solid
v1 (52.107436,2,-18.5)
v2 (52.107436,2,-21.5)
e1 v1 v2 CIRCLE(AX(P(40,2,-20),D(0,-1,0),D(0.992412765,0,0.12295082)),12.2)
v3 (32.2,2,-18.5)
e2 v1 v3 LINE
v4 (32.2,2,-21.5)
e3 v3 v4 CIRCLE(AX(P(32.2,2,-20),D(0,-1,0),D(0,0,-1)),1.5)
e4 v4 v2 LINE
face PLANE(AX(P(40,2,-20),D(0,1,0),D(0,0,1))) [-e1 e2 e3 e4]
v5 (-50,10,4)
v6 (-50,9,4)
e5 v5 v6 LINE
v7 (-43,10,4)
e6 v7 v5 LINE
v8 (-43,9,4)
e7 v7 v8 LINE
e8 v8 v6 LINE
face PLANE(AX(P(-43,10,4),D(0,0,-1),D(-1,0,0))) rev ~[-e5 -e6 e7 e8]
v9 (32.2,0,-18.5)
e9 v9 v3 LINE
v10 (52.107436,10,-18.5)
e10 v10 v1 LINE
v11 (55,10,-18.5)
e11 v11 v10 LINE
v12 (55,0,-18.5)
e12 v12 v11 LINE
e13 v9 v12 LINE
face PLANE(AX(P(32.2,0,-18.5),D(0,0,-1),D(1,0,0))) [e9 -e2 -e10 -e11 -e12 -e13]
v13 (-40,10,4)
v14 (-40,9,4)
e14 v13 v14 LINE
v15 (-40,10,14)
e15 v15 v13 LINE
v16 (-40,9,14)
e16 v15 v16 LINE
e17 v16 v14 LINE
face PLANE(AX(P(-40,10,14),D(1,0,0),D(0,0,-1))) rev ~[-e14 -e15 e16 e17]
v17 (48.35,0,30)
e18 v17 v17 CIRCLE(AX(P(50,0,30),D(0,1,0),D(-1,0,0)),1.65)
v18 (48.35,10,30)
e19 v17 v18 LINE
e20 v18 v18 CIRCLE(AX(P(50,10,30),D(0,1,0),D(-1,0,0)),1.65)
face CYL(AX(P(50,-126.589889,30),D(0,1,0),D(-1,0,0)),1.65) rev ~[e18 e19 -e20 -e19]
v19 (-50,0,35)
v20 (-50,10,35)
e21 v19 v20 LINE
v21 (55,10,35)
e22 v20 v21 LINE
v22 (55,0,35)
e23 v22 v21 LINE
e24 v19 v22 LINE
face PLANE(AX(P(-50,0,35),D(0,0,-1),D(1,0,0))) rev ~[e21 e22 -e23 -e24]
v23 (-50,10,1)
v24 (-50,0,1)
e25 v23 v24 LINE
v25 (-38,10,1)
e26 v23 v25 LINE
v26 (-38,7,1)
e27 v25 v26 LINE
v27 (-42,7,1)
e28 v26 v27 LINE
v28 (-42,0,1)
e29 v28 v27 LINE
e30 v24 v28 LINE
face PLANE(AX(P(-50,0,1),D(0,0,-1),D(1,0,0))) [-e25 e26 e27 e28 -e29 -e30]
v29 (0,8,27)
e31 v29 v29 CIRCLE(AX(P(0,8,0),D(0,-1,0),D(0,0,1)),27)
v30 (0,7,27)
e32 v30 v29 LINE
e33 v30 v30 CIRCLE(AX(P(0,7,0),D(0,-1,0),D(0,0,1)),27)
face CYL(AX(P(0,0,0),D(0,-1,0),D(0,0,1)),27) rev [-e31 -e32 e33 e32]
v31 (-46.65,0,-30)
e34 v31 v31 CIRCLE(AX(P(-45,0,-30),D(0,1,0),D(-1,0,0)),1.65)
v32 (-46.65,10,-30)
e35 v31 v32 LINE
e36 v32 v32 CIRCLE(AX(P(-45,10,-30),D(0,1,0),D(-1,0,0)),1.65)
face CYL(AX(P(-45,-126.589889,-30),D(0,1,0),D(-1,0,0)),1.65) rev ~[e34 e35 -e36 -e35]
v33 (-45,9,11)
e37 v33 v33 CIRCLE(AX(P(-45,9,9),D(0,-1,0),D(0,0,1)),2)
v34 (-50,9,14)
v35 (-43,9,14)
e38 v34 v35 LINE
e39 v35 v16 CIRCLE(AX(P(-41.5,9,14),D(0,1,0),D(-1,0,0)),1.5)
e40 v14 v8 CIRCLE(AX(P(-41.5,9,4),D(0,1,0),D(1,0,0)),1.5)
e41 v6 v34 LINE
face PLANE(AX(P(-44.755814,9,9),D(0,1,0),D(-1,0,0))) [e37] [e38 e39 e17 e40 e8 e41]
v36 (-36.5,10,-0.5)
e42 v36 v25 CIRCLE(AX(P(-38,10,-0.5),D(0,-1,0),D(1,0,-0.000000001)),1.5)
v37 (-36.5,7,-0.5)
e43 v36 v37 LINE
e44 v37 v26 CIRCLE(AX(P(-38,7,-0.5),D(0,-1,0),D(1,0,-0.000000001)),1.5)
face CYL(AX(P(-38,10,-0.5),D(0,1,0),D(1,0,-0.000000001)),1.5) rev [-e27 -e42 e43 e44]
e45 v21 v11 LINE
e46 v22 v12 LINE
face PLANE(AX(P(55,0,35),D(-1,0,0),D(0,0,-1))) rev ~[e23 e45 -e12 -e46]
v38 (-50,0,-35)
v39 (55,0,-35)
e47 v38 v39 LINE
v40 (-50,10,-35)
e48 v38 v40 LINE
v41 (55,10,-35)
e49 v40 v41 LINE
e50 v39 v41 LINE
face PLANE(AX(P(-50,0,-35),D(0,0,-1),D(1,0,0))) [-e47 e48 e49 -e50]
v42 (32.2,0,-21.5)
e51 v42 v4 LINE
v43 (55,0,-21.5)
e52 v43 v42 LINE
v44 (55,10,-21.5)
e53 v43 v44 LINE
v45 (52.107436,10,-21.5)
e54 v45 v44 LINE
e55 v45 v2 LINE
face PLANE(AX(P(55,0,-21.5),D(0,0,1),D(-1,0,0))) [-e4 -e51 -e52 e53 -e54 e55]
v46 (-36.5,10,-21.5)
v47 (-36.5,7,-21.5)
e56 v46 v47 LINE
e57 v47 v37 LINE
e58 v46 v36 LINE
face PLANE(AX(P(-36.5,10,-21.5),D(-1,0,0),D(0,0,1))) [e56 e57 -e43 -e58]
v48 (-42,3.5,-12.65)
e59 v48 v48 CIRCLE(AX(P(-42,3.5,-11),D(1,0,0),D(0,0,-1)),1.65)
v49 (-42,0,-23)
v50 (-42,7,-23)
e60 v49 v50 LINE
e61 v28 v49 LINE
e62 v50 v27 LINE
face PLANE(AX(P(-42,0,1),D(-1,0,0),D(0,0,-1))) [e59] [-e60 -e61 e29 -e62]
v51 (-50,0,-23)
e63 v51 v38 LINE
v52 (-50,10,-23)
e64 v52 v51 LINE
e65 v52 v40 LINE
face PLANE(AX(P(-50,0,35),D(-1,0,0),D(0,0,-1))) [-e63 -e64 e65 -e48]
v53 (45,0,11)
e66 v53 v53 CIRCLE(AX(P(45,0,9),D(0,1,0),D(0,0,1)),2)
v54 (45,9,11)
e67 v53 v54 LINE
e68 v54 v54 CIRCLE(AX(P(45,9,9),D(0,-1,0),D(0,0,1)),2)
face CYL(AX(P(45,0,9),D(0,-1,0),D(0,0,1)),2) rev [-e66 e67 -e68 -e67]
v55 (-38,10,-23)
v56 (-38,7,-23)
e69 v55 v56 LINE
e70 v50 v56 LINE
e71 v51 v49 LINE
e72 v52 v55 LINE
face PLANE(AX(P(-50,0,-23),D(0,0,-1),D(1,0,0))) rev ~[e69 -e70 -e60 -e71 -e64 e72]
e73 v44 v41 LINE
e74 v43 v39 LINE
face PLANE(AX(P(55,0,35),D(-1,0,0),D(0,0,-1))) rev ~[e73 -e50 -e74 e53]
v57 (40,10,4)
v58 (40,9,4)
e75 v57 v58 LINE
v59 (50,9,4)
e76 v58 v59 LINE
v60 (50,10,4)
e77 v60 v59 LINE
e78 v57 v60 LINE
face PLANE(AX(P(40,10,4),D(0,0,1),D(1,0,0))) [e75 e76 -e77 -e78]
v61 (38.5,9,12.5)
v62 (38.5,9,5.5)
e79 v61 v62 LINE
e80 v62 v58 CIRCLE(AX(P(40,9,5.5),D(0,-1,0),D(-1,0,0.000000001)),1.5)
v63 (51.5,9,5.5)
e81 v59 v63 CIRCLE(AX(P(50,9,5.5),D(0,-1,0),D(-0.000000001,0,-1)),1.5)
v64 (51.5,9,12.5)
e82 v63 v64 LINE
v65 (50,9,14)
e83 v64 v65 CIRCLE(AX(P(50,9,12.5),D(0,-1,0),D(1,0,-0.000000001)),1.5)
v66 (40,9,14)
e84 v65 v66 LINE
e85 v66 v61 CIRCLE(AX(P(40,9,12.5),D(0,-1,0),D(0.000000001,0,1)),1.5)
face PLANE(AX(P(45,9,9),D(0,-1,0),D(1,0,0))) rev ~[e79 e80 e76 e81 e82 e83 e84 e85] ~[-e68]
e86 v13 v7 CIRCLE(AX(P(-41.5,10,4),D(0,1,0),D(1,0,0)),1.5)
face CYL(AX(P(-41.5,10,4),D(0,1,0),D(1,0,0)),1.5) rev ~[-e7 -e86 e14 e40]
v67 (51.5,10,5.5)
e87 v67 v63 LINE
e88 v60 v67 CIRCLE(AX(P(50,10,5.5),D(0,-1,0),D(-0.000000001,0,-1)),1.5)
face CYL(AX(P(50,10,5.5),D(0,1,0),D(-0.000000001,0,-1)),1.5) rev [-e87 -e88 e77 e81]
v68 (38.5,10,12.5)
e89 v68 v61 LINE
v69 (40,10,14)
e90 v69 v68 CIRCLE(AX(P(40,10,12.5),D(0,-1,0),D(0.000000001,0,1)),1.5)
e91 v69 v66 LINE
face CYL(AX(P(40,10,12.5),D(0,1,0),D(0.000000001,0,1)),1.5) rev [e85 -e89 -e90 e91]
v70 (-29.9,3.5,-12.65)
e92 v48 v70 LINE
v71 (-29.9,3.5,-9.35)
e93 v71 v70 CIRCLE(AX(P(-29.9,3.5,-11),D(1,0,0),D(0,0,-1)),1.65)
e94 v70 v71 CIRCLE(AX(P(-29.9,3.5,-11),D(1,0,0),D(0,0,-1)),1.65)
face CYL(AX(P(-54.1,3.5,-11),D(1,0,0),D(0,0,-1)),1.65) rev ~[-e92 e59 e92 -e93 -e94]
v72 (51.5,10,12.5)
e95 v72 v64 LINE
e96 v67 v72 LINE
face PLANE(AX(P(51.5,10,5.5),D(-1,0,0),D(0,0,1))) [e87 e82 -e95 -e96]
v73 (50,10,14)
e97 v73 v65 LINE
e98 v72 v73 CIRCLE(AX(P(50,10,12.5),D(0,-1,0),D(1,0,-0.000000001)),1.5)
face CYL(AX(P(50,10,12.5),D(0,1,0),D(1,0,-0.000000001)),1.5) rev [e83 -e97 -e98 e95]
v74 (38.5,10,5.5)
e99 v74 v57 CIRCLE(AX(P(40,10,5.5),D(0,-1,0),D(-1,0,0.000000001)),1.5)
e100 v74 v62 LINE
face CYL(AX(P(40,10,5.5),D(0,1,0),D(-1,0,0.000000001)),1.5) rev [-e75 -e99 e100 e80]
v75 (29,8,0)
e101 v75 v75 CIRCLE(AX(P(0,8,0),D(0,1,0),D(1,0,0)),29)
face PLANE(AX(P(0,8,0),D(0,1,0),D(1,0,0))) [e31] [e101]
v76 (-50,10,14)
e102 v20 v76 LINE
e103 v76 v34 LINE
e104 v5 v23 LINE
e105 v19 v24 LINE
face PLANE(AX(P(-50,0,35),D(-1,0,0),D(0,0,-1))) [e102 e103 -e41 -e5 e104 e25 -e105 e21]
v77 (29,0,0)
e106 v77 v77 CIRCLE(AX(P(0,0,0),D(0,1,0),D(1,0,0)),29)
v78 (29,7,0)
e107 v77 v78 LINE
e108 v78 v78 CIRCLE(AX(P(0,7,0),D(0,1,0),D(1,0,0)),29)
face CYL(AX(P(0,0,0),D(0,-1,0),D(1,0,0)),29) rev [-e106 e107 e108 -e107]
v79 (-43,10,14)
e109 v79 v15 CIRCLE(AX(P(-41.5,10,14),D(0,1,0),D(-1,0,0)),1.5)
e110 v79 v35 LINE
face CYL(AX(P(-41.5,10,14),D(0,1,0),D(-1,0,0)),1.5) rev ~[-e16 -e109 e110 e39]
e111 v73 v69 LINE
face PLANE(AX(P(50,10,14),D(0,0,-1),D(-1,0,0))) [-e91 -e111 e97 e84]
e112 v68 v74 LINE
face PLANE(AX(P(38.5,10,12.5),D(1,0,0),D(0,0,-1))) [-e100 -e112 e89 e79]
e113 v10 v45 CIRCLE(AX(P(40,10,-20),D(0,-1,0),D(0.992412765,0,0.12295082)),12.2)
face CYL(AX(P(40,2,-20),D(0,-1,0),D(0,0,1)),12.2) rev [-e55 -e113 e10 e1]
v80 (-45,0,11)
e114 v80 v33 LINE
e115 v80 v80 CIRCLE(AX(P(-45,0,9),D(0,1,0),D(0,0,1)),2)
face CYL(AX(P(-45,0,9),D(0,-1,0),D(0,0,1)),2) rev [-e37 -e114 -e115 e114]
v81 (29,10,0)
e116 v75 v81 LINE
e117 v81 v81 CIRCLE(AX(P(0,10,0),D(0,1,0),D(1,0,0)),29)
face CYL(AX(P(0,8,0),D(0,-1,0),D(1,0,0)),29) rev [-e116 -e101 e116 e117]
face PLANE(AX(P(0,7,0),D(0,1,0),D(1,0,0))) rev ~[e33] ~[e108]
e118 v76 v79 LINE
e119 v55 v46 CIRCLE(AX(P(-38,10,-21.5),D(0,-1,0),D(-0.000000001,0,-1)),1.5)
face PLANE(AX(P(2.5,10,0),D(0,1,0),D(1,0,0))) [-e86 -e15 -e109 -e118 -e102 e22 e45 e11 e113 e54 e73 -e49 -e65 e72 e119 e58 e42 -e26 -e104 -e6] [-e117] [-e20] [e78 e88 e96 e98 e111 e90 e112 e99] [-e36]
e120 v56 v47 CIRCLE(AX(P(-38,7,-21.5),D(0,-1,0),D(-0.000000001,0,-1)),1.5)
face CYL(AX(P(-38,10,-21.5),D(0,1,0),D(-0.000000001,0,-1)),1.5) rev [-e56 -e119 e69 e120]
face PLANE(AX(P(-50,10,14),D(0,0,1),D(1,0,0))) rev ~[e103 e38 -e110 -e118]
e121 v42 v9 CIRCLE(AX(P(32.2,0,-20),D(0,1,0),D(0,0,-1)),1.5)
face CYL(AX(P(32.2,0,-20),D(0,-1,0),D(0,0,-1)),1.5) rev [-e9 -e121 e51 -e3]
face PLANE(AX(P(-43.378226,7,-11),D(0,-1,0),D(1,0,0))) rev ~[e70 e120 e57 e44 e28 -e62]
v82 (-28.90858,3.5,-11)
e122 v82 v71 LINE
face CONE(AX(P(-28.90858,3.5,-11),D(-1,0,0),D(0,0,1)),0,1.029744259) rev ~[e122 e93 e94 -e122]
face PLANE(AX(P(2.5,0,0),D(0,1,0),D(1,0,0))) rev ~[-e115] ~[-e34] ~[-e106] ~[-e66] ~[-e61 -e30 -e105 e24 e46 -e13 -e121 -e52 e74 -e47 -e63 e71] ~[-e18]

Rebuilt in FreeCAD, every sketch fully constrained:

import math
import FreeCAD as App
import Part
import Sketcher
from FreeCAD import Vector
Q = App.Units.Quantity

doc = App.newDocument("Part")
body = doc.addObject("PartDesign::Body", "Body")

# Sketch on XZ plane
sketch1 = body.newObject("Sketcher::SketchObject", "Sketch")
sketch1.AttachmentSupport = (doc.getObject("XZ_Plane"), [""])
sketch1.MapMode = "FlatFace"
sketch1.addGeometry([
    Part.LineSegment(Vector(-50, -35, 0), Vector(-50, 35, 0)),  # 0
    Part.LineSegment(Vector(-50, 35, 0), Vector(55, 35, 0)),  # 1
    Part.LineSegment(Vector(55, 35, 0), Vector(55, -35, 0)),  # 2
    Part.LineSegment(Vector(55, -35, 0), Vector(-50, -35, 0)),  # 3
    Part.Circle(Vector(0, 0, 0), Vector(0, 0, 1), 27),  # 4
], False)
sketch1.addConstraint([
    Sketcher.Constraint("Coincident", 0, 2, 1, 1),
    Sketcher.Constraint("Coincident", 1, 2, 2, 1),
    Sketcher.Constraint("Coincident", 2, 2, 3, 1),
    Sketcher.Constraint("Coincident", 3, 2, 0, 1),
    Sketcher.Constraint("Vertical", 0),
    Sketcher.Constraint("Horizontal", 1),
    Sketcher.Constraint("Vertical", 2),
    Sketcher.Constraint("Horizontal", 3),
    Sketcher.Constraint("Coincident", 4, 3, -1, 1),
    Sketcher.Constraint("Diameter", 4, Q("54 mm")),
    Sketcher.Constraint("DistanceX", 1, 1, 1, 2, Q("105 mm")),
    Sketcher.Constraint("DistanceY", 0, 1, 0, 2, Q("70 mm")),
    Sketcher.Constraint("DistanceX", 0, 2, -1, 1, Q("50 mm")),
    Sketcher.Constraint("DistanceY", -1, 1, 0, 2, Q("35 mm")),
])
pad1 = body.newObject("PartDesign::Pad", "Pad")
pad1.Profile = sketch1
pad1.Length = 10
pad1.Reversed = True

# Sketch on XZ plane
sketch2 = body.newObject("Sketcher::SketchObject", "Sketch001")
sketch2.AttachmentSupport = (doc.getObject("XZ_Plane"), [""])
sketch2.MapMode = "FlatFace"
sketch2.AttachmentOffset = App.Placement(Vector(0, 0, -2), App.Rotation())
sketch2.addGeometry(Part.Circle(Vector(40, -20, 0), Vector(0, 0, 1), 12), False)
sketch2.addConstraint([
    Sketcher.Constraint("Diameter", 0, Q("24.4 mm")),
    Sketcher.Constraint("DistanceX", -1, 1, 0, 3, Q("40 mm")),
    Sketcher.Constraint("DistanceY", 0, 3, -1, 1, Q("20 mm")),
])
pocket1 = body.newObject("PartDesign::Pocket", "Pocket")
pocket1.Profile = sketch2
pocket1.Length = 8

# Sketch on XZ plane
sketch3 = body.newObject("Sketcher::SketchObject", "Sketch002")
sketch3.AttachmentSupport = (doc.getObject("XZ_Plane"), [""])
sketch3.MapMode = "FlatFace"
sketch3.addGeometry([
    Part.Circle(Vector(45, 9, 0), Vector(0, 0, 1), 2),  # 0
    Part.Circle(Vector(-45, 9, 0), Vector(0, 0, 1), 2),  # 1
    Part.LineSegment(Vector(32.2, -18.5, 0), Vector(55, -18.5, 0)),  # 2
    Part.LineSegment(Vector(55, -18.5, 0), Vector(55, -21.5, 0)),  # 3
    Part.LineSegment(Vector(55, -21.5, 0), Vector(32.2, -21.5, 0)),  # 4
    Part.ArcOfCircle(Part.Circle(Vector(32.2, -20, 0), Vector(0, 0, 1), 1.5), math.radians(90), math.radians(270)),  # 5
], False)
sketch3.addConstraint([
    Sketcher.Constraint("Coincident", 2, 2, 3, 1),
    Sketcher.Constraint("Coincident", 3, 2, 4, 1),
    Sketcher.Constraint("Tangent", 4, 2, 5, 2),
    Sketcher.Constraint("Tangent", 5, 1, 2, 1),
    Sketcher.Constraint("Horizontal", 2),
    Sketcher.Constraint("Vertical", 3),
    Sketcher.Constraint("Horizontal", 4),
    Sketcher.Constraint("Equal", 0, 1),
    Sketcher.Constraint("Symmetric", 0, 3, 1, 3, -2),
    Sketcher.Constraint("Diameter", 0, Q("4 mm")),
    Sketcher.Constraint("Radius", 5, Q("1.5 mm")),
    Sketcher.Constraint("DistanceX", 2, 1, 2, 2, Q("22.8 mm")),
    Sketcher.Constraint("DistanceX", -1, 1, 0, 3, Q("45 mm")),
    Sketcher.Constraint("DistanceY", -1, 1, 0, 3, Q("9 mm")),
    Sketcher.Constraint("DistanceY", 5, 3, -1, 1, Q("20 mm")),
    Sketcher.Constraint("DistanceX", -1, 1, 2, 2, Q("55 mm")),
])
pocket2 = body.newObject("PartDesign::Pocket", "Pocket001")
pocket2.Profile = sketch3
pocket2.Type = "ThroughAll"

# Sketch on XZ plane
sketch4 = body.newObject("Sketcher::SketchObject", "Sketch003")
sketch4.AttachmentSupport = (doc.getObject("XZ_Plane"), [""])
sketch4.MapMode = "FlatFace"
sketch4.AttachmentOffset = App.Placement(Vector(0, 0, -10), App.Rotation())
sketch4.addGeometry([
    Part.LineSegment(Vector(40, 14, 0), Vector(50, 14, 0)),  # 0
    Part.ArcOfCircle(Part.Circle(Vector(50, 12.5, 0), Vector(0, 0, 1), 1.5), math.radians(0), math.radians(90)),  # 1
    Part.LineSegment(Vector(51.5, 12.5, 0), Vector(51.5, 5.5, 0)),  # 2
    Part.ArcOfCircle(Part.Circle(Vector(50, 5.5, 0), Vector(0, 0, 1), 1.5), math.radians(-90), math.radians(0)),  # 3
    Part.LineSegment(Vector(50, 4, 0), Vector(40, 4, 0)),  # 4
    Part.ArcOfCircle(Part.Circle(Vector(40, 5.5, 0), Vector(0, 0, 1), 1.5), math.radians(180), math.radians(270)),  # 5
    Part.LineSegment(Vector(38.5, 5.5, 0), Vector(38.5, 12.5, 0)),  # 6
    Part.ArcOfCircle(Part.Circle(Vector(40, 12.5, 0), Vector(0, 0, 1), 1.5), math.radians(90), math.radians(180)),  # 7
    Part.LineSegment(Vector(-50, 14, 0), Vector(-43, 14, 0)),  # 8
    Part.ArcOfCircle(Part.Circle(Vector(-41.5, 14, 0), Vector(0, 0, 1), 1.5), math.radians(0), math.radians(180)),  # 9
    Part.LineSegment(Vector(-40, 14, 0), Vector(-40, 4, 0)),  # 10
    Part.ArcOfCircle(Part.Circle(Vector(-41.5, 4, 0), Vector(0, 0, 1), 1.5), math.radians(180), math.radians(360)),  # 11
    Part.LineSegment(Vector(-43, 4, 0), Vector(-50, 4, 0)),  # 12
    Part.LineSegment(Vector(-50, 4, 0), Vector(-50, 14, 0)),  # 13
], False)
sketch4.addConstraint([
    Sketcher.Constraint("Tangent", 0, 2, 1, 2),
    Sketcher.Constraint("Tangent", 1, 1, 2, 1),
    Sketcher.Constraint("Tangent", 2, 2, 3, 2),
    Sketcher.Constraint("Tangent", 3, 1, 4, 1),
    Sketcher.Constraint("Tangent", 4, 2, 5, 2),
    Sketcher.Constraint("Tangent", 5, 1, 6, 1),
    Sketcher.Constraint("Tangent", 6, 2, 7, 2),
    Sketcher.Constraint("Tangent", 7, 1, 0, 1),
    Sketcher.Constraint("Coincident", 8, 2, 9, 2),
    Sketcher.Constraint("Tangent", 9, 1, 10, 1),
    Sketcher.Constraint("Tangent", 10, 2, 11, 2),
    Sketcher.Constraint("Coincident", 11, 1, 12, 1),
    Sketcher.Constraint("Coincident", 12, 2, 13, 1),
    Sketcher.Constraint("Coincident", 13, 2, 8, 1),
    Sketcher.Constraint("Horizontal", 0),
    Sketcher.Constraint("Vertical", 2),
    Sketcher.Constraint("Horizontal", 4),
    Sketcher.Constraint("Vertical", 6),
    Sketcher.Constraint("Horizontal", 8),
    Sketcher.Constraint("Vertical", 10),
    Sketcher.Constraint("Horizontal", 12),
    Sketcher.Constraint("Vertical", 13),
    Sketcher.Constraint("Equal", 1, 3),
    Sketcher.Constraint("Equal", 3, 5),
    Sketcher.Constraint("Equal", 5, 7),
    Sketcher.Constraint("Equal", 7, 9),
    Sketcher.Constraint("Equal", 9, 11),
    Sketcher.Constraint("Symmetric", 7, 1, 9, 1, -2),
    Sketcher.Constraint("Symmetric", 3, 1, 12, 2, -2),
    Sketcher.Constraint("Horizontal", 11, 3, 3, 1),
    Sketcher.Constraint("Horizontal", 7, 1, 8, 2),
    Sketcher.Constraint("Equal", 12, 2),
    Sketcher.Constraint("Radius", 1, Q("1.5 mm")),
    Sketcher.Constraint("DistanceX", 0, 1, 0, 2, Q("10 mm")),
    Sketcher.Constraint("DistanceX", -1, 1, 1, 3, Q("50 mm")),
    Sketcher.Constraint("DistanceY", -1, 1, 9, 3, Q("14 mm")),
])
pocket3 = body.newObject("PartDesign::Pocket", "Pocket002")
pocket3.Profile = sketch4
pocket3.Length = 1
pocket3.Reversed = True

# Sketch on XZ plane
sketch5 = body.newObject("Sketcher::SketchObject", "Sketch004")
sketch5.AttachmentSupport = (doc.getObject("XZ_Plane"), [""])
sketch5.MapMode = "FlatFace"
sketch5.addGeometry(Part.Circle(Vector(0, 0, 0), Vector(0, 0, 1), 29), False)
sketch5.addConstraint([
    Sketcher.Constraint("Coincident", 0, 3, -1, 1),
    Sketcher.Constraint("Diameter", 0, Q("58 mm")),
])
pocket4 = body.newObject("PartDesign::Pocket", "Pocket003")
pocket4.Profile = sketch5
pocket4.Length = 7

# Sketch on XZ plane
sketch6 = body.newObject("Sketcher::SketchObject", "Sketch005")
sketch6.AttachmentSupport = (doc.getObject("XZ_Plane"), [""])
sketch6.MapMode = "FlatFace"
sketch6.AttachmentOffset = App.Placement(Vector(0, 0, -8), App.Rotation())
sketch6.addGeometry(Part.Circle(Vector(0, 0, 0), Vector(0, 0, 1), 29), False)
sketch6.addConstraint([
    Sketcher.Constraint("Coincident", 0, 3, -1, 1),
    Sketcher.Constraint("Diameter", 0, Q("58 mm")),
])
pocket5 = body.newObject("PartDesign::Pocket", "Pocket004")
pocket5.Profile = sketch6
pocket5.Length = 2

# Sketch on XZ plane
sketch7 = body.newObject("Sketcher::SketchObject", "Sketch006")
sketch7.AttachmentSupport = (doc.getObject("XZ_Plane"), [""])
sketch7.MapMode = "FlatFace"
sketch7.addGeometry([
    Part.LineSegment(Vector(-50, -23, 0), Vector(-50, 1, 0)),
    Part.LineSegment(Vector(-50, 1, 0), Vector(-42, 1, 0)),
    Part.LineSegment(Vector(-42, 1, 0), Vector(-42, -23, 0)),
    Part.LineSegment(Vector(-42, -23, 0), Vector(-50, -23, 0)),
], False)
sketch7.addConstraint([
    Sketcher.Constraint("Coincident", 0, 2, 1, 1),
    Sketcher.Constraint("Coincident", 1, 2, 2, 1),
    Sketcher.Constraint("Coincident", 2, 2, 3, 1),
    Sketcher.Constraint("Coincident", 3, 2, 0, 1),
    Sketcher.Constraint("Vertical", 0),
    Sketcher.Constraint("Horizontal", 1),
    Sketcher.Constraint("Vertical", 2),
    Sketcher.Constraint("Horizontal", 3),
    Sketcher.Constraint("DistanceX", 1, 1, 1, 2, Q("8 mm")),
    Sketcher.Constraint("DistanceY", 0, 1, 0, 2, Q("24 mm")),
    Sketcher.Constraint("DistanceX", 0, 2, -1, 1, Q("50 mm")),
    Sketcher.Constraint("DistanceY", -1, 1, 0, 2, Q("1 mm")),
])
pocket6 = body.newObject("PartDesign::Pocket", "Pocket005")
pocket6.Profile = sketch7
pocket6.Type = "UpToFirst"

# Sketch on XZ plane
sketch8 = body.newObject("Sketcher::SketchObject", "Sketch007")
sketch8.AttachmentSupport = (doc.getObject("XZ_Plane"), [""])
sketch8.MapMode = "FlatFace"
sketch8.AttachmentOffset = App.Placement(Vector(0, 0, -10), App.Rotation())
sketch8.addGeometry([
    Part.LineSegment(Vector(-38, -23, 0), Vector(-50, -23, 0)),  # 0
    Part.LineSegment(Vector(-50, -23, 0), Vector(-50, 1, 0)),  # 1
    Part.LineSegment(Vector(-50, 1, 0), Vector(-38, 1, 0)),  # 2
    Part.ArcOfCircle(Part.Circle(Vector(-38, -0.5, 0), Vector(0, 0, 1), 1.5), math.radians(0), math.radians(90)),  # 3
    Part.LineSegment(Vector(-36.5, -0.5, 0), Vector(-36.5, -21.5, 0)),  # 4
    Part.ArcOfCircle(Part.Circle(Vector(-38, -21.5, 0), Vector(0, 0, 1), 1.5), math.radians(-90), math.radians(0)),  # 5
], False)
sketch8.addConstraint([
    Sketcher.Constraint("Coincident", 0, 2, 1, 1),
    Sketcher.Constraint("Coincident", 1, 2, 2, 1),
    Sketcher.Constraint("Tangent", 2, 2, 3, 2),
    Sketcher.Constraint("Tangent", 3, 1, 4, 1),
    Sketcher.Constraint("Tangent", 4, 2, 5, 2),
    Sketcher.Constraint("Tangent", 5, 1, 0, 1),
    Sketcher.Constraint("Horizontal", 0),
    Sketcher.Constraint("Vertical", 1),
    Sketcher.Constraint("Horizontal", 2),
    Sketcher.Constraint("Vertical", 4),
    Sketcher.Constraint("Equal", 3, 5),
    Sketcher.Constraint("Radius", 3, Q("1.5 mm")),
    Sketcher.Constraint("DistanceX", 0, 2, 0, 1, Q("12 mm")),
    Sketcher.Constraint("DistanceY", 1, 1, 1, 2, Q("24 mm")),
    Sketcher.Constraint("DistanceX", 3, 3, -1, 1, Q("38 mm")),
    Sketcher.Constraint("DistanceY", 0, 2, -1, 1, Q("23 mm")),
])
pocket7 = body.newObject("PartDesign::Pocket", "Pocket006")
pocket7.Profile = sketch8
pocket7.Length = 3
pocket7.Reversed = True

# Sketch on YZ plane
sketch9 = body.newObject("Sketcher::SketchObject", "Sketch008")
sketch9.AttachmentSupport = (doc.getObject("YZ_Plane"), [""])
sketch9.MapMode = "FlatFace"
sketch9.AttachmentOffset = App.Placement(Vector(0, 0, -42), App.Rotation())
sketch9.addGeometry(Part.Circle(Vector(3.5, -11, 0), Vector(0, 0, 1), 1.6), False)
sketch9.addConstraint([
    Sketcher.Constraint("Diameter", 0, Q("3.3 mm")),
    Sketcher.Constraint("DistanceY", 0, 3, -1, 1, Q("11 mm")),
    Sketcher.Constraint("DistanceX", -1, 1, 0, 3, Q("3.5 mm")),
])
doc.recompute()
hole = body.newObject("PartDesign::Hole", "Hole")
hole.Profile = sketch9
hole.ThreadType = "None"
hole.Diameter = 3.3
hole.DepthType = "Dimension"
hole.Depth = 12.1
hole.DrillPoint = "Angled"
hole.DrillPointAngle = 118
hole.Reversed = True

# Sketch on XZ plane
sketch10 = body.newObject("Sketcher::SketchObject", "Sketch009")
sketch10.AttachmentSupport = (doc.getObject("XZ_Plane"), [""])
sketch10.MapMode = "FlatFace"
sketch10.addGeometry([
    Part.Circle(Vector(-45, -30, 0), Vector(0, 0, 1), 1.6),
    Part.Circle(Vector(50, 30, 0), Vector(0, 0, 1), 1.6),
], False)
sketch10.addConstraint([
    Sketcher.Constraint("Equal", 0, 1),
    Sketcher.Constraint("Diameter", 0, Q("3.3 mm")),
    Sketcher.Constraint("DistanceX", 0, 3, -1, 1, Q("45 mm")),
    Sketcher.Constraint("DistanceY", 0, 3, -1, 1, Q("30 mm")),
    Sketcher.Constraint("DistanceX", -1, 1, 1, 3, Q("50 mm")),
    Sketcher.Constraint("DistanceY", -1, 1, 1, 3, Q("30 mm")),
])
doc.recompute()
hole2 = body.newObject("PartDesign::Hole", "Hole001")
hole2.Profile = sketch10
hole2.ThreadType = "None"
hole2.Diameter = 3.3
hole2.DepthType = "ThroughAll"

doc.recompute()
